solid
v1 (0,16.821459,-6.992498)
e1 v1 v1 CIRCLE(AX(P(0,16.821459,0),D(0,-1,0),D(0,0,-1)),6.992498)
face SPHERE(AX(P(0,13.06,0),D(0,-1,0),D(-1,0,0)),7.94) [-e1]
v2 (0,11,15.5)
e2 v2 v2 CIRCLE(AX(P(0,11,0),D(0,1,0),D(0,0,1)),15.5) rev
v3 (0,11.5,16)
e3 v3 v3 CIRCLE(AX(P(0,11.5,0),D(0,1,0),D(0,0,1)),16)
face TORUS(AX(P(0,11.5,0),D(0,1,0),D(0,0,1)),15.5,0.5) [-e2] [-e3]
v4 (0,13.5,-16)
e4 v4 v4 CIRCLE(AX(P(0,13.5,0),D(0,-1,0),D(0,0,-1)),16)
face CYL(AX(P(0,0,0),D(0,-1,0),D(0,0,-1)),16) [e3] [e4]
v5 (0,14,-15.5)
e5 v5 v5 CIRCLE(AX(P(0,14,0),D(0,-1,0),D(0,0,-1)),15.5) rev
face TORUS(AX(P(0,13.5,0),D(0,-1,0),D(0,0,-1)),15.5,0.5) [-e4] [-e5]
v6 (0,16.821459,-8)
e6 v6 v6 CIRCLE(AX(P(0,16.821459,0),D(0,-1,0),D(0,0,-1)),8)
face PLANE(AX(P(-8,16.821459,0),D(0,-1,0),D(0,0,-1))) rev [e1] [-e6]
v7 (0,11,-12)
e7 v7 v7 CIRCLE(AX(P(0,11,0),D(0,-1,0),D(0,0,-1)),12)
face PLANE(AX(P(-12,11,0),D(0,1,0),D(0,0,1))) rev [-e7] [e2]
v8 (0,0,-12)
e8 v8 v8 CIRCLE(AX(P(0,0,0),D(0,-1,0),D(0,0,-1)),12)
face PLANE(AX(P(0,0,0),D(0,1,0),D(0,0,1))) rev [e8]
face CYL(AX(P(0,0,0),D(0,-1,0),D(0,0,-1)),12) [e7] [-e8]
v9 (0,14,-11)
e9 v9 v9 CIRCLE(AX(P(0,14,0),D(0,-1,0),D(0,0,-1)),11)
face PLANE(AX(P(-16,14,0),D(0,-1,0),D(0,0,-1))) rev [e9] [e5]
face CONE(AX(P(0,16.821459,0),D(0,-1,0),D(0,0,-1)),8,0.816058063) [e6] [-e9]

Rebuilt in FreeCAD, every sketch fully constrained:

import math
import FreeCAD as App
import Part
import Sketcher

V = App.Vector
Q = App.Units.Quantity


def edges_at(feature, points):
    """Names of the edges that pass closest to the given points."""
    edges = feature.Shape.Edges
    near = lambda p: min(range(len(edges)), key=lambda i: edges[i].distToShape(Part.Vertex(*p))[0])
    return sorted({f"Edge{near(p) + 1}" for p in points})

doc = App.newDocument("Part")
body = doc.addObject("PartDesign::Body", "Body")

sketch1 = doc.addObject("Sketcher::SketchObject", "Sketch")
body.addObject(sketch1)
sketch1.AttachmentSupport = (doc.XY_Plane, [""])
sketch1.MapMode = "FlatFace"
sketch1.addGeometry([
    Part.LineSegment(V(-12, 0, 0), V(0, 0, 0)),
    Part.LineSegment(V(0, 0, 0), V(0, 21, 0)),
    Part.ArcOfCircle(Part.Circle(V(0, 13.1, 0), V(0, 0, 1), 7.9), math.radians(90), math.radians(152)),
    Part.LineSegment(V(-7, 16.8, 0), V(-8, 16.8, 0)),
    Part.LineSegment(V(-8, 16.8, 0), V(-11, 14, 0)),
    Part.LineSegment(V(-11, 14, 0), V(-16, 14, 0)),
    Part.LineSegment(V(-16, 14, 0), V(-16, 11, 0)),
    Part.LineSegment(V(-16, 11, 0), V(-12, 11, 0)),
    Part.LineSegment(V(-12, 11, 0), V(-12, 0, 0)),
], False)
sketch1.addConstraint([
    Sketcher.Constraint("Coincident", 0, 2, 1, 1),
    Sketcher.Constraint("Coincident", 1, 2, 2, 1),
    Sketcher.Constraint("Coincident", 2, 2, 3, 1),
    Sketcher.Constraint("Coincident", 3, 2, 4, 1),
    Sketcher.Constraint("Coincident", 4, 2, 5, 1),
    Sketcher.Constraint("Coincident", 5, 2, 6, 1),
    Sketcher.Constraint("Coincident", 6, 2, 7, 1),
    Sketcher.Constraint("Coincident", 7, 2, 8, 1),
    Sketcher.Constraint("Coincident", 8, 2, 0, 1),
    Sketcher.Constraint("Horizontal", 0),
    Sketcher.Constraint("Vertical", 1),
    Sketcher.Constraint("Horizontal", 3),
    Sketcher.Constraint("Horizontal", 5),
    Sketcher.Constraint("Vertical", 6),
    Sketcher.Constraint("Horizontal", 7),
    Sketcher.Constraint("Vertical", 8),
    Sketcher.Constraint("Coincident", 0, 2, -1, 1),
    Sketcher.Constraint("PointOnObject", 2, 3, -2),
    Sketcher.Constraint("DistanceX", 0, 1, 0, 2, Q("12 mm")),
    Sketcher.Constraint("DistanceX", 5, 2, 5, 1, Q("5 mm")),
    Sketcher.Constraint("DistanceX", 7, 1, 7, 2, Q("4 mm")),
    Sketcher.Constraint("DistanceY", 1, 1, 1, 2, Q("21 mm")),
    Sketcher.Constraint("DistanceY", 6, 2, 6, 1, Q("3 mm")),
    Sketcher.Constraint("DistanceY", 8, 2, 8, 1, Q("11 mm")),
    Sketcher.Constraint("Radius", 2, Q("7.94 mm")),
    Sketcher.Constraint("DistanceX", 3, 2, -1, 1, Q("8 mm")),
    Sketcher.Constraint("DistanceX", 3, 2, 3, 1, Q("1.007502 mm")),
])
revolution = doc.addObject("PartDesign::Revolution", "Revolution")
body.addObject(revolution)
revolution.Profile = sketch1
revolution.ReferenceAxis = (sketch1, ["V_Axis"])
revolution.Angle = 360
doc.recompute()

fillet = doc.addObject("PartDesign::Fillet", "Fillet")
body.addObject(fillet)
fillet.Base = (revolution, edges_at(revolution, [(0, 11, 16), (0, 14, 16)]))
fillet.Radius = 0.5

doc.recompute()
